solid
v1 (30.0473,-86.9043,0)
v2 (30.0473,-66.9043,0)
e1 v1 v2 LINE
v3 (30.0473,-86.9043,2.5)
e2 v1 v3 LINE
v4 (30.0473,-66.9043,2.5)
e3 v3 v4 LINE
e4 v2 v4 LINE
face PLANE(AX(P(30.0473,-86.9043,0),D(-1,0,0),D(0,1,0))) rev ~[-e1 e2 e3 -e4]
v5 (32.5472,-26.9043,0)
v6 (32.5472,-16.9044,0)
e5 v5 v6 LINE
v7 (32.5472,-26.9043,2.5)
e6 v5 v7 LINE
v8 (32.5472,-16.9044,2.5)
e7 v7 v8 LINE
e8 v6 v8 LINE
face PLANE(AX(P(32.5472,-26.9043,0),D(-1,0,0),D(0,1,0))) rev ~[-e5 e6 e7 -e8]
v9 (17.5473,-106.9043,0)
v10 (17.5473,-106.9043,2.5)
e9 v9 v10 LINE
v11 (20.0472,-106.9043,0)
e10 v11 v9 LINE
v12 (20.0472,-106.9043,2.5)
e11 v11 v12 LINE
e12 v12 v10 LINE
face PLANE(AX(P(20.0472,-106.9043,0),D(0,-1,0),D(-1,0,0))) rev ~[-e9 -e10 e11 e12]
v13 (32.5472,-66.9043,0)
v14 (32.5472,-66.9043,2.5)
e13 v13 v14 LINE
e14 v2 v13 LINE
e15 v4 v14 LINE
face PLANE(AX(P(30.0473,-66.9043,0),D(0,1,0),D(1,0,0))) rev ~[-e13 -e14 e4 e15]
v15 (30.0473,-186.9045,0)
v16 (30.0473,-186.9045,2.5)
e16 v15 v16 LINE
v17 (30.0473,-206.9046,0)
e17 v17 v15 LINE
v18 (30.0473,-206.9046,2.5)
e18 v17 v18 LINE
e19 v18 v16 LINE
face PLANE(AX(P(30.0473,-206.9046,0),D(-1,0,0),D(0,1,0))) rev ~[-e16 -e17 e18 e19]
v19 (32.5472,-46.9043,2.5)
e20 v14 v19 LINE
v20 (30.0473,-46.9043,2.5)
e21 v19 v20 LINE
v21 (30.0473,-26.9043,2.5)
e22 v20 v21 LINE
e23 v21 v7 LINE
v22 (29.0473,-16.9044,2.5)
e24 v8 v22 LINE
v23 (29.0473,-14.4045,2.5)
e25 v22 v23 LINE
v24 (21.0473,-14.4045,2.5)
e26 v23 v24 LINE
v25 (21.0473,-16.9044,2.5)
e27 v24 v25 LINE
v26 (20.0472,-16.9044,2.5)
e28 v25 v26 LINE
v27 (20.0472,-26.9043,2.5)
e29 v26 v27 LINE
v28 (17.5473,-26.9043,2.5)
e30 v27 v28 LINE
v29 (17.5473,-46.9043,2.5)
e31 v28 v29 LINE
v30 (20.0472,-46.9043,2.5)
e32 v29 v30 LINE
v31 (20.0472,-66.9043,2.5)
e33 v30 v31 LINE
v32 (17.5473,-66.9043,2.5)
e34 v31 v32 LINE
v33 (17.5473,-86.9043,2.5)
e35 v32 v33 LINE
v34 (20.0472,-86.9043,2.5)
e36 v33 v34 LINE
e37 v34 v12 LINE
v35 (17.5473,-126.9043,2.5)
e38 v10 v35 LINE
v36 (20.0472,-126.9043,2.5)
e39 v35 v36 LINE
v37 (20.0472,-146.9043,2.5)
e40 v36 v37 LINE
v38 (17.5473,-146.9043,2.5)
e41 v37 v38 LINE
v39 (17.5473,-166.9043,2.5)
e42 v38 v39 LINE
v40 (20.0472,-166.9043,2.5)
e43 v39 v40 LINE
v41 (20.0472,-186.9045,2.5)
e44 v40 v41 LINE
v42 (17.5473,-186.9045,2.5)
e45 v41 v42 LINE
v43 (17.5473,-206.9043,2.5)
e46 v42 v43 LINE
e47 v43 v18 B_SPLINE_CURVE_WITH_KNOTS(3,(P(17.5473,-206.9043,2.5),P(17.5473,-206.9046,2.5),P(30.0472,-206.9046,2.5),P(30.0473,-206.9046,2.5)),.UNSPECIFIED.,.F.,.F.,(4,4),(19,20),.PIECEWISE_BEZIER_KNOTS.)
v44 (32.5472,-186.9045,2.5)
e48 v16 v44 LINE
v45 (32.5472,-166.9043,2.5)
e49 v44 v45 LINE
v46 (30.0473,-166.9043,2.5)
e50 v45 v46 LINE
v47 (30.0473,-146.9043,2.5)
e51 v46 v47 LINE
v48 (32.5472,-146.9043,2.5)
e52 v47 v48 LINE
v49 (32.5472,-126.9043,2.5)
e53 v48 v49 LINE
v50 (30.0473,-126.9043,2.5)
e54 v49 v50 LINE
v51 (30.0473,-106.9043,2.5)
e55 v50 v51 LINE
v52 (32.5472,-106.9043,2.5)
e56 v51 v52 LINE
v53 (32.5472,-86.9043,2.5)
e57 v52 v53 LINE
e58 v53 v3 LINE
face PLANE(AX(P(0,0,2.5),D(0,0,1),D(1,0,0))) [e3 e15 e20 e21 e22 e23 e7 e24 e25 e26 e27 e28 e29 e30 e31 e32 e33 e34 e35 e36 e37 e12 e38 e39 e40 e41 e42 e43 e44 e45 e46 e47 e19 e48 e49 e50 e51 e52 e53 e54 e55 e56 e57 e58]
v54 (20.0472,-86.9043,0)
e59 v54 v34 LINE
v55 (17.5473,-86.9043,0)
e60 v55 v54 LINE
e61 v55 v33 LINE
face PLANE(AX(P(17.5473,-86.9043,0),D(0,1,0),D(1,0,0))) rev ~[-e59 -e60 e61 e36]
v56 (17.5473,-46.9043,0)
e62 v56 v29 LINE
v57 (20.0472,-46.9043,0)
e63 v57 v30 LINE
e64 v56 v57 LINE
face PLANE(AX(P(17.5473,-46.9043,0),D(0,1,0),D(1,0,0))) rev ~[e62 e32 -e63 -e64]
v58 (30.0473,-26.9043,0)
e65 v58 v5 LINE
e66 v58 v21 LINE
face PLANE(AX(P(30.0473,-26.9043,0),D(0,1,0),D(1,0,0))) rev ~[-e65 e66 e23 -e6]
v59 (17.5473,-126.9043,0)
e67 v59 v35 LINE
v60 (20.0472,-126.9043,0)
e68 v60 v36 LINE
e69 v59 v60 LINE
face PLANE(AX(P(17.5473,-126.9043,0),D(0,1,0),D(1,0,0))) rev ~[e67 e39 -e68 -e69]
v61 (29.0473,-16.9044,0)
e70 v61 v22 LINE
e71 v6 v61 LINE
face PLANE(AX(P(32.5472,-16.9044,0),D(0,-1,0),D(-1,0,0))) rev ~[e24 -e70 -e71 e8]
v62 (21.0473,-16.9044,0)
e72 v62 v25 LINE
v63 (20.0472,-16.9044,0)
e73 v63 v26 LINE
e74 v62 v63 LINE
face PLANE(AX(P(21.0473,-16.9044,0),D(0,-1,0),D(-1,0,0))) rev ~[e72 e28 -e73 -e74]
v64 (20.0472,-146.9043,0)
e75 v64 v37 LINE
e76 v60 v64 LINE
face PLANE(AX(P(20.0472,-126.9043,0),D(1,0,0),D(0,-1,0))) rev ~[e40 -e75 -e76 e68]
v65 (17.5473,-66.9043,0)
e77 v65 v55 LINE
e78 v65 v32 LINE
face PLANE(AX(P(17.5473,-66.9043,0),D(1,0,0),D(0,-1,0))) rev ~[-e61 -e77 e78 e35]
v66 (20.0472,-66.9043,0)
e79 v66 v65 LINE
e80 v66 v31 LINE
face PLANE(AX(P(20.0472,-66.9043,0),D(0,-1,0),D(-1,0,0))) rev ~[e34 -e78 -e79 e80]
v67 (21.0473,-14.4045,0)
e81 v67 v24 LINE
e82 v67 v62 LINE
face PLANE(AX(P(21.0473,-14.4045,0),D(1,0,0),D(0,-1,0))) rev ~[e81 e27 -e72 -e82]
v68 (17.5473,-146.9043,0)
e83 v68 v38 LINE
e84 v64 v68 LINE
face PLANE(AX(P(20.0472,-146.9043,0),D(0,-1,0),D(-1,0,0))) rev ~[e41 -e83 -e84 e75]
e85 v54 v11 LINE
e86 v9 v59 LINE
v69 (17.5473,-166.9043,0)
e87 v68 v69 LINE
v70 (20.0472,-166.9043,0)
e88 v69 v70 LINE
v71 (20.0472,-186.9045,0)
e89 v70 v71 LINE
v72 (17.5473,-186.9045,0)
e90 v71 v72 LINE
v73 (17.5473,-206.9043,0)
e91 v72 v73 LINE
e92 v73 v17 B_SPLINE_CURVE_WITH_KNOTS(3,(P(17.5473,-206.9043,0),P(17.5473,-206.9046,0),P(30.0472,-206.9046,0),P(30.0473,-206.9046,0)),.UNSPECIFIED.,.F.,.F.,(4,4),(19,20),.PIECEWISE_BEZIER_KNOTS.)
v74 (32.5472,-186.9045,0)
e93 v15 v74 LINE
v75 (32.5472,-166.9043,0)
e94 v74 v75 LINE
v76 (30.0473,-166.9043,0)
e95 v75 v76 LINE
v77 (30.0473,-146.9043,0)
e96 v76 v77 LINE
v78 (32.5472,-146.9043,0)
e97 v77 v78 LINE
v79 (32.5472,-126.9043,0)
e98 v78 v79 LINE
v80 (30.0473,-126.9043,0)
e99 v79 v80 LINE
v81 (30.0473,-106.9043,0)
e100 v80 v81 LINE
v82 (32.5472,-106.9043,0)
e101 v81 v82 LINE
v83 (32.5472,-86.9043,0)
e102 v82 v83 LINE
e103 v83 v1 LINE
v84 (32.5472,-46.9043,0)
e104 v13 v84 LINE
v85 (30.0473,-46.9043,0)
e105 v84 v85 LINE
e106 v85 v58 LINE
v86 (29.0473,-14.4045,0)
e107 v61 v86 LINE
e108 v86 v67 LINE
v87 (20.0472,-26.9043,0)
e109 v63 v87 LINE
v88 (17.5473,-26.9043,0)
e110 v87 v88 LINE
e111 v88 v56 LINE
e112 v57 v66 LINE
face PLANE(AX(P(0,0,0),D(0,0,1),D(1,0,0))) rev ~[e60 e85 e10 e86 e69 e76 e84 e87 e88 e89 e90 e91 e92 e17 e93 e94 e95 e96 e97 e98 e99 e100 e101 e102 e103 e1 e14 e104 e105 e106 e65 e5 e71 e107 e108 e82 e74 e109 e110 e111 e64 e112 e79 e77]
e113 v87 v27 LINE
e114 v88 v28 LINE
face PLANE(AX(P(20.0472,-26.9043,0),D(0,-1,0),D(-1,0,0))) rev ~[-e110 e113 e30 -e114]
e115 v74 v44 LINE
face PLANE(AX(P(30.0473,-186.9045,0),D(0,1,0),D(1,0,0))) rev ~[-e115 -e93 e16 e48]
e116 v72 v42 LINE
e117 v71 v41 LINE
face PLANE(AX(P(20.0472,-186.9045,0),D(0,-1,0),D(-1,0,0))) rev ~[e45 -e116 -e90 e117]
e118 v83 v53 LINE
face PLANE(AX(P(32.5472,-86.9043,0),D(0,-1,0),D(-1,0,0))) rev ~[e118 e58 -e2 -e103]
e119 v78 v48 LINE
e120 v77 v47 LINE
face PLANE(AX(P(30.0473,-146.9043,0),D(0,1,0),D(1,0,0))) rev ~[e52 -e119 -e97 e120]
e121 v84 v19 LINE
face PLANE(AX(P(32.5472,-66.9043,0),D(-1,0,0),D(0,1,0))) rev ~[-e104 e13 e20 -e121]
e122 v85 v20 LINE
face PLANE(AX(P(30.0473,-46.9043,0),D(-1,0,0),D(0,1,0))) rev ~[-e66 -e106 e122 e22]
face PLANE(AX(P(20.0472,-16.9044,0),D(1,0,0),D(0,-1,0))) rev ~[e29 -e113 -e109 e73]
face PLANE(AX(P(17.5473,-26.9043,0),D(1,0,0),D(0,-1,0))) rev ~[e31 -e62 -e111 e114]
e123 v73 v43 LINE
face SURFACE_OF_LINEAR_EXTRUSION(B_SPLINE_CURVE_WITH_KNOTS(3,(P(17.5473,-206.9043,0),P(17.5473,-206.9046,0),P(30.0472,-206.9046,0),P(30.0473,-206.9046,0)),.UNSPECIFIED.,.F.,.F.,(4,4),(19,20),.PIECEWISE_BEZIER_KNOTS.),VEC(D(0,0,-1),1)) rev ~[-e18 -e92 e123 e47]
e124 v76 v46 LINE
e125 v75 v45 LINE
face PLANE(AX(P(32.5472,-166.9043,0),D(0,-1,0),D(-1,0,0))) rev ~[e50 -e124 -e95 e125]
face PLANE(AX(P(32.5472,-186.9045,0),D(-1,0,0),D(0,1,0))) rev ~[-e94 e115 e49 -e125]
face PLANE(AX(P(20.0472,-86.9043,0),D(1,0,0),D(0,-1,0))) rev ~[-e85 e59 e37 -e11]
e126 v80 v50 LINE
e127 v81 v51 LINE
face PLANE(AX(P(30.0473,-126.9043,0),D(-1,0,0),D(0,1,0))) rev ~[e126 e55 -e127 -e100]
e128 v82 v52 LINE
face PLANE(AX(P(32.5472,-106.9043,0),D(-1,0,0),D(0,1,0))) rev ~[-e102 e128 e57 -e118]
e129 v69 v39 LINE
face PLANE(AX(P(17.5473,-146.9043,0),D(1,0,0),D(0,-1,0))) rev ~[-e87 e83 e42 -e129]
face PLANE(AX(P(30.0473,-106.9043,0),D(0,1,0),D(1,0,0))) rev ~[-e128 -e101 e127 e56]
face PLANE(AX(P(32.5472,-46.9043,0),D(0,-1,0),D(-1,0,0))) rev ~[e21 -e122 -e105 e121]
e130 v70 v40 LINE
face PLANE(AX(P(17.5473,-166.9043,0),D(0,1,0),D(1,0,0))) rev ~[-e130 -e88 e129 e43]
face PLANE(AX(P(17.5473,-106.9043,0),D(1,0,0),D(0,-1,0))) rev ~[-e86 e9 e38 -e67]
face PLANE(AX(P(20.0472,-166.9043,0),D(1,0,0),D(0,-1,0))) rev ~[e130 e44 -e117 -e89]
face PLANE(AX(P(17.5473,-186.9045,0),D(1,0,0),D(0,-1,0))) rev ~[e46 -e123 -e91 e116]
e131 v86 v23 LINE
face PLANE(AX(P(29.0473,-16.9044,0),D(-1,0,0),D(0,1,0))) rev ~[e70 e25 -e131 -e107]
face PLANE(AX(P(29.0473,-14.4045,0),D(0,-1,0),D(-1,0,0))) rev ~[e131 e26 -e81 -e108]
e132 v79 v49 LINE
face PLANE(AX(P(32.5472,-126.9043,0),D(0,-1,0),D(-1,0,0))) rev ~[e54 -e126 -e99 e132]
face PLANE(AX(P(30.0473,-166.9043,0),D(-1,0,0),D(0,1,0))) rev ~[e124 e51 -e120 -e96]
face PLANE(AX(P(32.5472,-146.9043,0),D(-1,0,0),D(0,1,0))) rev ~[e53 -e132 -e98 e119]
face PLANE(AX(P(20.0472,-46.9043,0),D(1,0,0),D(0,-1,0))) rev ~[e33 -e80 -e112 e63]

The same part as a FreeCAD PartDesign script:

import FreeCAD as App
import Part
import Sketcher

doc = App.newDocument("Part")
body = doc.addObject("PartDesign::Body", "Body")

# Sketch on XY plane
sketch1 = body.newObject("Sketcher::SketchObject", "Sketch")
sketch1.AttachmentSupport = (doc.getObject("XY_Plane"), [""])
sketch1.MapMode = "FlatFace"
sketch1.addGeometry(Part.LineSegment(App.Vector(21.0473, -16.9044, 0), App.Vector(20.0472, -16.9044, 0)), False)
sketch1.addGeometry(Part.LineSegment(App.Vector(20.0472, -16.9044, 0), App.Vector(20.0472, -26.9043, 0)), False)
sketch1.addGeometry(Part.LineSegment(App.Vector(20.0472, -26.9043, 0), App.Vector(17.5473, -26.9043, 0)), False)
sketch1.addGeometry(Part.LineSegment(App.Vector(17.5473, -26.9043, 0), App.Vector(17.5473, -46.9043, 0)), False)
sketch1.addGeometry(Part.LineSegment(App.Vector(17.5473, -46.9043, 0), App.Vector(20.0472, -46.9043, 0)), False)
sketch1.addGeometry(Part.LineSegment(App.Vector(20.0472, -46.9043, 0), App.Vector(20.0472, -66.9043, 0)), False)
sketch1.addGeometry(Part.LineSegment(App.Vector(20.0472, -66.9043, 0), App.Vector(17.5473, -66.9043, 0)), False)
sketch1.addGeometry(Part.LineSegment(App.Vector(17.5473, -66.9043, 0), App.Vector(17.5473, -86.9043, 0)), False)
sketch1.addGeometry(Part.LineSegment(App.Vector(17.5473, -86.9043, 0), App.Vector(20.0472, -86.9043, 0)), False)
sketch1.addGeometry(Part.LineSegment(App.Vector(20.0472, -86.9043, 0), App.Vector(20.0472, -106.9043, 0)), False)
sketch1.addGeometry(Part.LineSegment(App.Vector(20.0472, -106.9043, 0), App.Vector(17.5473, -106.9043, 0)), False)
sketch1.addGeometry(Part.LineSegment(App.Vector(17.5473, -106.9043, 0), App.Vector(17.5473, -126.9043, 0)), False)
sketch1.addGeometry(Part.LineSegment(App.Vector(17.5473, -126.9043, 0), App.Vector(20.0472, -126.9043, 0)), False)
sketch1.addGeometry(Part.LineSegment(App.Vector(20.0472, -126.9043, 0), App.Vector(20.0472, -146.9043, 0)), False)
sketch1.addGeometry(Part.LineSegment(App.Vector(20.0472, -146.9043, 0), App.Vector(17.5473, -146.9043, 0)), False)
sketch1.addGeometry(Part.LineSegment(App.Vector(17.5473, -146.9043, 0), App.Vector(17.5473, -166.9043, 0)), False)
sketch1.addGeometry(Part.LineSegment(App.Vector(17.5473, -166.9043, 0), App.Vector(20.0472, -166.9043, 0)), False)
sketch1.addGeometry(Part.LineSegment(App.Vector(20.0472, -166.9043, 0), App.Vector(20.0472, -186.9045, 0)), False)
sketch1.addGeometry(Part.LineSegment(App.Vector(20.0472, -186.9045, 0), App.Vector(17.5473, -186.9045, 0)), False)
sketch1.addGeometry(Part.LineSegment(App.Vector(17.5473, -186.9045, 0), App.Vector(17.5473, -206.9043, 0)), False)
sketch1.addGeometry(Part.BSplineCurve([App.Vector(17.5473, -206.9043, 0), App.Vector(17.5473, -206.9046, 0), App.Vector(30.0472, -206.9046, 0), App.Vector(30.0473, -206.9046, 0)], [4, 4], [19, 20], False, 3, [1, 1, 1, 1], False), False)
sketch1.addGeometry(Part.LineSegment(App.Vector(30.0473, -206.9046, 0), App.Vector(30.0473, -186.9045, 0)), False)
sketch1.addGeometry(Part.LineSegment(App.Vector(30.0473, -186.9045, 0), App.Vector(32.5472, -186.9045, 0)), False)
sketch1.addGeometry(Part.LineSegment(App.Vector(32.5472, -186.9045, 0), App.Vector(32.5472, -166.9043, 0)), False)
sketch1.addGeometry(Part.LineSegment(App.Vector(32.5472, -166.9043, 0), App.Vector(30.0473, -166.9043, 0)), False)
sketch1.addGeometry(Part.LineSegment(App.Vector(30.0473, -166.9043, 0), App.Vector(30.0473, -146.9043, 0)), False)
sketch1.addGeometry(Part.LineSegment(App.Vector(30.0473, -146.9043, 0), App.Vector(32.5472, -146.9043, 0)), False)
sketch1.addGeometry(Part.LineSegment(App.Vector(32.5472, -146.9043, 0), App.Vector(32.5472, -126.9043, 0)), False)
sketch1.addGeometry(Part.LineSegment(App.Vector(32.5472, -126.9043, 0), App.Vector(30.0473, -126.9043, 0)), False)
sketch1.addGeometry(Part.LineSegment(App.Vector(30.0473, -126.9043, 0), App.Vector(30.0473, -106.9043, 0)), False)
sketch1.addGeometry(Part.LineSegment(App.Vector(30.0473, -106.9043, 0), App.Vector(32.5472, -106.9043, 0)), False)
sketch1.addGeometry(Part.LineSegment(App.Vector(32.5472, -106.9043, 0), App.Vector(32.5472, -86.9043, 0)), False)
sketch1.addGeometry(Part.LineSegment(App.Vector(32.5472, -86.9043, 0), App.Vector(30.0473, -86.9043, 0)), False)
sketch1.addGeometry(Part.LineSegment(App.Vector(30.0473, -86.9043, 0), App.Vector(30.0473, -66.9043, 0)), False)
sketch1.addGeometry(Part.LineSegment(App.Vector(30.0473, -66.9043, 0), App.Vector(32.5472, -66.9043, 0)), False)
sketch1.addGeometry(Part.LineSegment(App.Vector(32.5472, -66.9043, 0), App.Vector(32.5472, -46.9043, 0)), False)
sketch1.addGeometry(Part.LineSegment(App.Vector(32.5472, -46.9043, 0), App.Vector(30.0473, -46.9043, 0)), False)
sketch1.addGeometry(Part.LineSegment(App.Vector(30.0473, -46.9043, 0), App.Vector(30.0473, -26.9043, 0)), False)
sketch1.addGeometry(Part.LineSegment(App.Vector(30.0473, -26.9043, 0), App.Vector(32.5472, -26.9043, 0)), False)
sketch1.addGeometry(Part.LineSegment(App.Vector(32.5472, -26.9043, 0), App.Vector(32.5472, -16.9044, 0)), False)
sketch1.addGeometry(Part.LineSegment(App.Vector(32.5472, -16.9044, 0), App.Vector(29.0473, -16.9044, 0)), False)
sketch1.addGeometry(Part.LineSegment(App.Vector(29.0473, -16.9044, 0), App.Vector(29.0473, -14.4045, 0)), False)
sketch1.addGeometry(Part.LineSegment(App.Vector(29.0473, -14.4045, 0), App.Vector(21.0473, -14.4045, 0)), False)
sketch1.addGeometry(Part.LineSegment(App.Vector(21.0473, -14.4045, 0), App.Vector(21.0473, -16.9044, 0)), False)
sketch1.addConstraint(Sketcher.Constraint("Block", 20))
sketch1.addConstraint(Sketcher.Constraint("Coincident", 0, 2, 1, 1))
sketch1.addConstraint(Sketcher.Constraint("Coincident", 1, 2, 2, 1))
sketch1.addConstraint(Sketcher.Constraint("Coincident", 2, 2, 3, 1))
sketch1.addConstraint(Sketcher.Constraint("Coincident", 3, 2, 4, 1))
sketch1.addConstraint(Sketcher.Constraint("Coincident", 4, 2, 5, 1))
sketch1.addConstraint(Sketcher.Constraint("Coincident", 5, 2, 6, 1))
sketch1.addConstraint(Sketcher.Constraint("Coincident", 6, 2, 7, 1))
sketch1.addConstraint(Sketcher.Constraint("Coincident", 7, 2, 8, 1))
sketch1.addConstraint(Sketcher.Constraint("Coincident", 8, 2, 9, 1))
sketch1.addConstraint(Sketcher.Constraint("Coincident", 9, 2, 10, 1))
sketch1.addConstraint(Sketcher.Constraint("Coincident", 10, 2, 11, 1))
sketch1.addConstraint(Sketcher.Constraint("Coincident", 11, 2, 12, 1))
sketch1.addConstraint(Sketcher.Constraint("Coincident", 12, 2, 13, 1))
sketch1.addConstraint(Sketcher.Constraint("Coincident", 13, 2, 14, 1))
sketch1.addConstraint(Sketcher.Constraint("Coincident", 14, 2, 15, 1))
sketch1.addConstraint(Sketcher.Constraint("Coincident", 15, 2, 16, 1))
sketch1.addConstraint(Sketcher.Constraint("Coincident", 16, 2, 17, 1))
sketch1.addConstraint(Sketcher.Constraint("Coincident", 17, 2, 18, 1))
sketch1.addConstraint(Sketcher.Constraint("Coincident", 18, 2, 19, 1))
sketch1.addConstraint(Sketcher.Constraint("Coincident", 19, 2, 20, 1))
sketch1.addConstraint(Sketcher.Constraint("Coincident", 20, 2, 21, 1))
sketch1.addConstraint(Sketcher.Constraint("Coincident", 21, 2, 22, 1))
sketch1.addConstraint(Sketcher.Constraint("Coincident", 22, 2, 23, 1))
sketch1.addConstraint(Sketcher.Constraint("Coincident", 23, 2, 24, 1))
sketch1.addConstraint(Sketcher.Constraint("Coincident", 24, 2, 25, 1))
sketch1.addConstraint(Sketcher.Constraint("Coincident", 25, 2, 26, 1))
sketch1.addConstraint(Sketcher.Constraint("Coincident", 26, 2, 27, 1))
sketch1.addConstraint(Sketcher.Constraint("Coincident", 27, 2, 28, 1))
sketch1.addConstraint(Sketcher.Constraint("Coincident", 28, 2, 29, 1))
sketch1.addConstraint(Sketcher.Constraint("Coincident", 29, 2, 30, 1))
sketch1.addConstraint(Sketcher.Constraint("Coincident", 30, 2, 31, 1))
sketch1.addConstraint(Sketcher.Constraint("Coincident", 31, 2, 32, 1))
sketch1.addConstraint(Sketcher.Constraint("Coincident", 32, 2, 33, 1))
sketch1.addConstraint(Sketcher.Constraint("Coincident", 33, 2, 34, 1))
sketch1.addConstraint(Sketcher.Constraint("Coincident", 34, 2, 35, 1))
sketch1.addConstraint(Sketcher.Constraint("Coincident", 35, 2, 36, 1))
sketch1.addConstraint(Sketcher.Constraint("Coincident", 36, 2, 37, 1))
sketch1.addConstraint(Sketcher.Constraint("Coincident", 37, 2, 38, 1))
sketch1.addConstraint(Sketcher.Constraint("Coincident", 38, 2, 39, 1))
sketch1.addConstraint(Sketcher.Constraint("Coincident", 39, 2, 40, 1))
sketch1.addConstraint(Sketcher.Constraint("Coincident", 40, 2, 41, 1))
sketch1.addConstraint(Sketcher.Constraint("Coincident", 41, 2, 42, 1))
sketch1.addConstraint(Sketcher.Constraint("Coincident", 42, 2, 43, 1))
sketch1.addConstraint(Sketcher.Constraint("Coincident", 43, 2, 0, 1))
sketch1.addConstraint(Sketcher.Constraint("Horizontal", 0))
sketch1.addConstraint(Sketcher.Constraint("Vertical", 1))
sketch1.addConstraint(Sketcher.Constraint("Horizontal", 2))
sketch1.addConstraint(Sketcher.Constraint("Vertical", 3))
sketch1.addConstraint(Sketcher.Constraint("Horizontal", 4))
sketch1.addConstraint(Sketcher.Constraint("Vertical", 5))
sketch1.addConstraint(Sketcher.Constraint("Horizontal", 6))
sketch1.addConstraint(Sketcher.Constraint("Vertical", 7))
sketch1.addConstraint(Sketcher.Constraint("Horizontal", 8))
sketch1.addConstraint(Sketcher.Constraint("Vertical", 9))
sketch1.addConstraint(Sketcher.Constraint("Horizontal", 10))
sketch1.addConstraint(Sketcher.Constraint("Vertical", 11))
sketch1.addConstraint(Sketcher.Constraint("Horizontal", 12))
sketch1.addConstraint(Sketcher.Constraint("Vertical", 13))
sketch1.addConstraint(Sketcher.Constraint("Horizontal", 14))
sketch1.addConstraint(Sketcher.Constraint("Vertical", 15))
sketch1.addConstraint(Sketcher.Constraint("Horizontal", 16))
sketch1.addConstraint(Sketcher.Constraint("Vertical", 17))
sketch1.addConstraint(Sketcher.Constraint("Horizontal", 18))
sketch1.addConstraint(Sketcher.Constraint("Vertical", 19))
sketch1.addConstraint(Sketcher.Constraint("Vertical", 21))
sketch1.addConstraint(Sketcher.Constraint("Horizontal", 22))
sketch1.addConstraint(Sketcher.Constraint("Vertical", 23))
sketch1.addConstraint(Sketcher.Constraint("Horizontal", 24))
sketch1.addConstraint(Sketcher.Constraint("Vertical", 25))
sketch1.addConstraint(Sketcher.Constraint("Horizontal", 26))
sketch1.addConstraint(Sketcher.Constraint("Vertical", 27))
sketch1.addConstraint(Sketcher.Constraint("Horizontal", 28))
sketch1.addConstraint(Sketcher.Constraint("Vertical", 29))
sketch1.addConstraint(Sketcher.Constraint("Horizontal", 30))
sketch1.addConstraint(Sketcher.Constraint("Vertical", 31))
sketch1.addConstraint(Sketcher.Constraint("Horizontal", 32))
sketch1.addConstraint(Sketcher.Constraint("Vertical", 33))
sketch1.addConstraint(Sketcher.Constraint("Horizontal", 34))
sketch1.addConstraint(Sketcher.Constraint("Vertical", 35))
sketch1.addConstraint(Sketcher.Constraint("Horizontal", 36))
sketch1.addConstraint(Sketcher.Constraint("Vertical", 37))
sketch1.addConstraint(Sketcher.Constraint("Horizontal", 38))
sketch1.addConstraint(Sketcher.Constraint("Vertical", 39))
sketch1.addConstraint(Sketcher.Constraint("Horizontal", 40))
sketch1.addConstraint(Sketcher.Constraint("Vertical", 41))
sketch1.addConstraint(Sketcher.Constraint("Horizontal", 42))
sketch1.addConstraint(Sketcher.Constraint("Vertical", 43))
sketch1.addConstraint(Sketcher.Constraint("Horizontal", 18, 2, 21, 2))
sketch1.addConstraint(Sketcher.Constraint("Horizontal", 16, 2, 23, 2))
sketch1.addConstraint(Sketcher.Constraint("Horizontal", 14, 2, 25, 2))
sketch1.addConstraint(Sketcher.Constraint("Horizontal", 12, 2, 27, 2))
sketch1.addConstraint(Sketcher.Constraint("Horizontal", 10, 2, 29, 2))
sketch1.addConstraint(Sketcher.Constraint("Horizontal", 8, 2, 31, 2))
sketch1.addConstraint(Sketcher.Constraint("Horizontal", 6, 2, 33, 2))
sketch1.addConstraint(Sketcher.Constraint("Horizontal", 4, 2, 35, 2))
sketch1.addConstraint(Sketcher.Constraint("Horizontal", 2, 2, 37, 2))
sketch1.addConstraint(Sketcher.Constraint("Horizontal", 0, 2, 39, 2))
sketch1.addConstraint(Sketcher.Constraint("Vertical", 1, 2, 4, 2))
sketch1.addConstraint(Sketcher.Constraint("Vertical", 3, 2, 6, 2))
sketch1.addConstraint(Sketcher.Constraint("Vertical", 5, 2, 8, 2))
sketch1.addConstraint(Sketcher.Constraint("Vertical", 7, 2, 10, 2))
sketch1.addConstraint(Sketcher.Constraint("Vertical", 9, 2, 12, 2))
sketch1.addConstraint(Sketcher.Constraint("Vertical", 11, 2, 14, 2))
sketch1.addConstraint(Sketcher.Constraint("Vertical", 13, 2, 16, 2))
sketch1.addConstraint(Sketcher.Constraint("Vertical", 15, 2, 18, 2))
sketch1.addConstraint(Sketcher.Constraint("Vertical", 21, 2, 24, 2))
sketch1.addConstraint(Sketcher.Constraint("Vertical", 23, 2, 26, 2))
sketch1.addConstraint(Sketcher.Constraint("Vertical", 25, 2, 28, 2))
sketch1.addConstraint(Sketcher.Constraint("Vertical", 27, 2, 30, 2))
sketch1.addConstraint(Sketcher.Constraint("Vertical", 29, 2, 32, 2))
sketch1.addConstraint(Sketcher.Constraint("Vertical", 31, 2, 34, 2))
sketch1.addConstraint(Sketcher.Constraint("Vertical", 33, 2, 36, 2))
sketch1.addConstraint(Sketcher.Constraint("Vertical", 35, 2, 38, 2))
sketch1.addConstraint(Sketcher.Constraint("Equal", 18, 22))
sketch1.addConstraint(Sketcher.Constraint("Equal", 3, 5))
sketch1.addConstraint(Sketcher.Constraint("Equal", 5, 7))
sketch1.addConstraint(Sketcher.Constraint("Equal", 7, 9))
sketch1.addConstraint(Sketcher.Constraint("Equal", 9, 11))
sketch1.addConstraint(Sketcher.Constraint("Equal", 11, 13))
sketch1.addConstraint(Sketcher.Constraint("Equal", 13, 15))
sketch1.addConstraint(Sketcher.Constraint("Equal", 5, 17))
sketch1.addConstraint(Sketcher.Constraint("Equal", 17, 21))
sketch1.addConstraint(Sketcher.Constraint("Equal", 38, 41))
sketch1.addConstraint(Sketcher.Constraint("DistanceX", 0, 2, 0, 1, 1.0))
sketch1.addConstraint(Sketcher.Constraint("DistanceX", 42, 2, 42, 1, 8.0))
sketch1.addConstraint(Sketcher.Constraint("DistanceY", 1, 2, 1, 1, 10.0))
sketch1.addConstraint(Sketcher.Constraint("DistanceY", 3, 2, 3, 1, 20.0))
sketch1.addConstraint(Sketcher.Constraint("DistanceX", 2, 2, 2, 1, 2.5))
pad1 = body.newObject("PartDesign::Pad", "Pad")
pad1.Profile = sketch1
pad1.Length = 2.5

doc.recompute()
